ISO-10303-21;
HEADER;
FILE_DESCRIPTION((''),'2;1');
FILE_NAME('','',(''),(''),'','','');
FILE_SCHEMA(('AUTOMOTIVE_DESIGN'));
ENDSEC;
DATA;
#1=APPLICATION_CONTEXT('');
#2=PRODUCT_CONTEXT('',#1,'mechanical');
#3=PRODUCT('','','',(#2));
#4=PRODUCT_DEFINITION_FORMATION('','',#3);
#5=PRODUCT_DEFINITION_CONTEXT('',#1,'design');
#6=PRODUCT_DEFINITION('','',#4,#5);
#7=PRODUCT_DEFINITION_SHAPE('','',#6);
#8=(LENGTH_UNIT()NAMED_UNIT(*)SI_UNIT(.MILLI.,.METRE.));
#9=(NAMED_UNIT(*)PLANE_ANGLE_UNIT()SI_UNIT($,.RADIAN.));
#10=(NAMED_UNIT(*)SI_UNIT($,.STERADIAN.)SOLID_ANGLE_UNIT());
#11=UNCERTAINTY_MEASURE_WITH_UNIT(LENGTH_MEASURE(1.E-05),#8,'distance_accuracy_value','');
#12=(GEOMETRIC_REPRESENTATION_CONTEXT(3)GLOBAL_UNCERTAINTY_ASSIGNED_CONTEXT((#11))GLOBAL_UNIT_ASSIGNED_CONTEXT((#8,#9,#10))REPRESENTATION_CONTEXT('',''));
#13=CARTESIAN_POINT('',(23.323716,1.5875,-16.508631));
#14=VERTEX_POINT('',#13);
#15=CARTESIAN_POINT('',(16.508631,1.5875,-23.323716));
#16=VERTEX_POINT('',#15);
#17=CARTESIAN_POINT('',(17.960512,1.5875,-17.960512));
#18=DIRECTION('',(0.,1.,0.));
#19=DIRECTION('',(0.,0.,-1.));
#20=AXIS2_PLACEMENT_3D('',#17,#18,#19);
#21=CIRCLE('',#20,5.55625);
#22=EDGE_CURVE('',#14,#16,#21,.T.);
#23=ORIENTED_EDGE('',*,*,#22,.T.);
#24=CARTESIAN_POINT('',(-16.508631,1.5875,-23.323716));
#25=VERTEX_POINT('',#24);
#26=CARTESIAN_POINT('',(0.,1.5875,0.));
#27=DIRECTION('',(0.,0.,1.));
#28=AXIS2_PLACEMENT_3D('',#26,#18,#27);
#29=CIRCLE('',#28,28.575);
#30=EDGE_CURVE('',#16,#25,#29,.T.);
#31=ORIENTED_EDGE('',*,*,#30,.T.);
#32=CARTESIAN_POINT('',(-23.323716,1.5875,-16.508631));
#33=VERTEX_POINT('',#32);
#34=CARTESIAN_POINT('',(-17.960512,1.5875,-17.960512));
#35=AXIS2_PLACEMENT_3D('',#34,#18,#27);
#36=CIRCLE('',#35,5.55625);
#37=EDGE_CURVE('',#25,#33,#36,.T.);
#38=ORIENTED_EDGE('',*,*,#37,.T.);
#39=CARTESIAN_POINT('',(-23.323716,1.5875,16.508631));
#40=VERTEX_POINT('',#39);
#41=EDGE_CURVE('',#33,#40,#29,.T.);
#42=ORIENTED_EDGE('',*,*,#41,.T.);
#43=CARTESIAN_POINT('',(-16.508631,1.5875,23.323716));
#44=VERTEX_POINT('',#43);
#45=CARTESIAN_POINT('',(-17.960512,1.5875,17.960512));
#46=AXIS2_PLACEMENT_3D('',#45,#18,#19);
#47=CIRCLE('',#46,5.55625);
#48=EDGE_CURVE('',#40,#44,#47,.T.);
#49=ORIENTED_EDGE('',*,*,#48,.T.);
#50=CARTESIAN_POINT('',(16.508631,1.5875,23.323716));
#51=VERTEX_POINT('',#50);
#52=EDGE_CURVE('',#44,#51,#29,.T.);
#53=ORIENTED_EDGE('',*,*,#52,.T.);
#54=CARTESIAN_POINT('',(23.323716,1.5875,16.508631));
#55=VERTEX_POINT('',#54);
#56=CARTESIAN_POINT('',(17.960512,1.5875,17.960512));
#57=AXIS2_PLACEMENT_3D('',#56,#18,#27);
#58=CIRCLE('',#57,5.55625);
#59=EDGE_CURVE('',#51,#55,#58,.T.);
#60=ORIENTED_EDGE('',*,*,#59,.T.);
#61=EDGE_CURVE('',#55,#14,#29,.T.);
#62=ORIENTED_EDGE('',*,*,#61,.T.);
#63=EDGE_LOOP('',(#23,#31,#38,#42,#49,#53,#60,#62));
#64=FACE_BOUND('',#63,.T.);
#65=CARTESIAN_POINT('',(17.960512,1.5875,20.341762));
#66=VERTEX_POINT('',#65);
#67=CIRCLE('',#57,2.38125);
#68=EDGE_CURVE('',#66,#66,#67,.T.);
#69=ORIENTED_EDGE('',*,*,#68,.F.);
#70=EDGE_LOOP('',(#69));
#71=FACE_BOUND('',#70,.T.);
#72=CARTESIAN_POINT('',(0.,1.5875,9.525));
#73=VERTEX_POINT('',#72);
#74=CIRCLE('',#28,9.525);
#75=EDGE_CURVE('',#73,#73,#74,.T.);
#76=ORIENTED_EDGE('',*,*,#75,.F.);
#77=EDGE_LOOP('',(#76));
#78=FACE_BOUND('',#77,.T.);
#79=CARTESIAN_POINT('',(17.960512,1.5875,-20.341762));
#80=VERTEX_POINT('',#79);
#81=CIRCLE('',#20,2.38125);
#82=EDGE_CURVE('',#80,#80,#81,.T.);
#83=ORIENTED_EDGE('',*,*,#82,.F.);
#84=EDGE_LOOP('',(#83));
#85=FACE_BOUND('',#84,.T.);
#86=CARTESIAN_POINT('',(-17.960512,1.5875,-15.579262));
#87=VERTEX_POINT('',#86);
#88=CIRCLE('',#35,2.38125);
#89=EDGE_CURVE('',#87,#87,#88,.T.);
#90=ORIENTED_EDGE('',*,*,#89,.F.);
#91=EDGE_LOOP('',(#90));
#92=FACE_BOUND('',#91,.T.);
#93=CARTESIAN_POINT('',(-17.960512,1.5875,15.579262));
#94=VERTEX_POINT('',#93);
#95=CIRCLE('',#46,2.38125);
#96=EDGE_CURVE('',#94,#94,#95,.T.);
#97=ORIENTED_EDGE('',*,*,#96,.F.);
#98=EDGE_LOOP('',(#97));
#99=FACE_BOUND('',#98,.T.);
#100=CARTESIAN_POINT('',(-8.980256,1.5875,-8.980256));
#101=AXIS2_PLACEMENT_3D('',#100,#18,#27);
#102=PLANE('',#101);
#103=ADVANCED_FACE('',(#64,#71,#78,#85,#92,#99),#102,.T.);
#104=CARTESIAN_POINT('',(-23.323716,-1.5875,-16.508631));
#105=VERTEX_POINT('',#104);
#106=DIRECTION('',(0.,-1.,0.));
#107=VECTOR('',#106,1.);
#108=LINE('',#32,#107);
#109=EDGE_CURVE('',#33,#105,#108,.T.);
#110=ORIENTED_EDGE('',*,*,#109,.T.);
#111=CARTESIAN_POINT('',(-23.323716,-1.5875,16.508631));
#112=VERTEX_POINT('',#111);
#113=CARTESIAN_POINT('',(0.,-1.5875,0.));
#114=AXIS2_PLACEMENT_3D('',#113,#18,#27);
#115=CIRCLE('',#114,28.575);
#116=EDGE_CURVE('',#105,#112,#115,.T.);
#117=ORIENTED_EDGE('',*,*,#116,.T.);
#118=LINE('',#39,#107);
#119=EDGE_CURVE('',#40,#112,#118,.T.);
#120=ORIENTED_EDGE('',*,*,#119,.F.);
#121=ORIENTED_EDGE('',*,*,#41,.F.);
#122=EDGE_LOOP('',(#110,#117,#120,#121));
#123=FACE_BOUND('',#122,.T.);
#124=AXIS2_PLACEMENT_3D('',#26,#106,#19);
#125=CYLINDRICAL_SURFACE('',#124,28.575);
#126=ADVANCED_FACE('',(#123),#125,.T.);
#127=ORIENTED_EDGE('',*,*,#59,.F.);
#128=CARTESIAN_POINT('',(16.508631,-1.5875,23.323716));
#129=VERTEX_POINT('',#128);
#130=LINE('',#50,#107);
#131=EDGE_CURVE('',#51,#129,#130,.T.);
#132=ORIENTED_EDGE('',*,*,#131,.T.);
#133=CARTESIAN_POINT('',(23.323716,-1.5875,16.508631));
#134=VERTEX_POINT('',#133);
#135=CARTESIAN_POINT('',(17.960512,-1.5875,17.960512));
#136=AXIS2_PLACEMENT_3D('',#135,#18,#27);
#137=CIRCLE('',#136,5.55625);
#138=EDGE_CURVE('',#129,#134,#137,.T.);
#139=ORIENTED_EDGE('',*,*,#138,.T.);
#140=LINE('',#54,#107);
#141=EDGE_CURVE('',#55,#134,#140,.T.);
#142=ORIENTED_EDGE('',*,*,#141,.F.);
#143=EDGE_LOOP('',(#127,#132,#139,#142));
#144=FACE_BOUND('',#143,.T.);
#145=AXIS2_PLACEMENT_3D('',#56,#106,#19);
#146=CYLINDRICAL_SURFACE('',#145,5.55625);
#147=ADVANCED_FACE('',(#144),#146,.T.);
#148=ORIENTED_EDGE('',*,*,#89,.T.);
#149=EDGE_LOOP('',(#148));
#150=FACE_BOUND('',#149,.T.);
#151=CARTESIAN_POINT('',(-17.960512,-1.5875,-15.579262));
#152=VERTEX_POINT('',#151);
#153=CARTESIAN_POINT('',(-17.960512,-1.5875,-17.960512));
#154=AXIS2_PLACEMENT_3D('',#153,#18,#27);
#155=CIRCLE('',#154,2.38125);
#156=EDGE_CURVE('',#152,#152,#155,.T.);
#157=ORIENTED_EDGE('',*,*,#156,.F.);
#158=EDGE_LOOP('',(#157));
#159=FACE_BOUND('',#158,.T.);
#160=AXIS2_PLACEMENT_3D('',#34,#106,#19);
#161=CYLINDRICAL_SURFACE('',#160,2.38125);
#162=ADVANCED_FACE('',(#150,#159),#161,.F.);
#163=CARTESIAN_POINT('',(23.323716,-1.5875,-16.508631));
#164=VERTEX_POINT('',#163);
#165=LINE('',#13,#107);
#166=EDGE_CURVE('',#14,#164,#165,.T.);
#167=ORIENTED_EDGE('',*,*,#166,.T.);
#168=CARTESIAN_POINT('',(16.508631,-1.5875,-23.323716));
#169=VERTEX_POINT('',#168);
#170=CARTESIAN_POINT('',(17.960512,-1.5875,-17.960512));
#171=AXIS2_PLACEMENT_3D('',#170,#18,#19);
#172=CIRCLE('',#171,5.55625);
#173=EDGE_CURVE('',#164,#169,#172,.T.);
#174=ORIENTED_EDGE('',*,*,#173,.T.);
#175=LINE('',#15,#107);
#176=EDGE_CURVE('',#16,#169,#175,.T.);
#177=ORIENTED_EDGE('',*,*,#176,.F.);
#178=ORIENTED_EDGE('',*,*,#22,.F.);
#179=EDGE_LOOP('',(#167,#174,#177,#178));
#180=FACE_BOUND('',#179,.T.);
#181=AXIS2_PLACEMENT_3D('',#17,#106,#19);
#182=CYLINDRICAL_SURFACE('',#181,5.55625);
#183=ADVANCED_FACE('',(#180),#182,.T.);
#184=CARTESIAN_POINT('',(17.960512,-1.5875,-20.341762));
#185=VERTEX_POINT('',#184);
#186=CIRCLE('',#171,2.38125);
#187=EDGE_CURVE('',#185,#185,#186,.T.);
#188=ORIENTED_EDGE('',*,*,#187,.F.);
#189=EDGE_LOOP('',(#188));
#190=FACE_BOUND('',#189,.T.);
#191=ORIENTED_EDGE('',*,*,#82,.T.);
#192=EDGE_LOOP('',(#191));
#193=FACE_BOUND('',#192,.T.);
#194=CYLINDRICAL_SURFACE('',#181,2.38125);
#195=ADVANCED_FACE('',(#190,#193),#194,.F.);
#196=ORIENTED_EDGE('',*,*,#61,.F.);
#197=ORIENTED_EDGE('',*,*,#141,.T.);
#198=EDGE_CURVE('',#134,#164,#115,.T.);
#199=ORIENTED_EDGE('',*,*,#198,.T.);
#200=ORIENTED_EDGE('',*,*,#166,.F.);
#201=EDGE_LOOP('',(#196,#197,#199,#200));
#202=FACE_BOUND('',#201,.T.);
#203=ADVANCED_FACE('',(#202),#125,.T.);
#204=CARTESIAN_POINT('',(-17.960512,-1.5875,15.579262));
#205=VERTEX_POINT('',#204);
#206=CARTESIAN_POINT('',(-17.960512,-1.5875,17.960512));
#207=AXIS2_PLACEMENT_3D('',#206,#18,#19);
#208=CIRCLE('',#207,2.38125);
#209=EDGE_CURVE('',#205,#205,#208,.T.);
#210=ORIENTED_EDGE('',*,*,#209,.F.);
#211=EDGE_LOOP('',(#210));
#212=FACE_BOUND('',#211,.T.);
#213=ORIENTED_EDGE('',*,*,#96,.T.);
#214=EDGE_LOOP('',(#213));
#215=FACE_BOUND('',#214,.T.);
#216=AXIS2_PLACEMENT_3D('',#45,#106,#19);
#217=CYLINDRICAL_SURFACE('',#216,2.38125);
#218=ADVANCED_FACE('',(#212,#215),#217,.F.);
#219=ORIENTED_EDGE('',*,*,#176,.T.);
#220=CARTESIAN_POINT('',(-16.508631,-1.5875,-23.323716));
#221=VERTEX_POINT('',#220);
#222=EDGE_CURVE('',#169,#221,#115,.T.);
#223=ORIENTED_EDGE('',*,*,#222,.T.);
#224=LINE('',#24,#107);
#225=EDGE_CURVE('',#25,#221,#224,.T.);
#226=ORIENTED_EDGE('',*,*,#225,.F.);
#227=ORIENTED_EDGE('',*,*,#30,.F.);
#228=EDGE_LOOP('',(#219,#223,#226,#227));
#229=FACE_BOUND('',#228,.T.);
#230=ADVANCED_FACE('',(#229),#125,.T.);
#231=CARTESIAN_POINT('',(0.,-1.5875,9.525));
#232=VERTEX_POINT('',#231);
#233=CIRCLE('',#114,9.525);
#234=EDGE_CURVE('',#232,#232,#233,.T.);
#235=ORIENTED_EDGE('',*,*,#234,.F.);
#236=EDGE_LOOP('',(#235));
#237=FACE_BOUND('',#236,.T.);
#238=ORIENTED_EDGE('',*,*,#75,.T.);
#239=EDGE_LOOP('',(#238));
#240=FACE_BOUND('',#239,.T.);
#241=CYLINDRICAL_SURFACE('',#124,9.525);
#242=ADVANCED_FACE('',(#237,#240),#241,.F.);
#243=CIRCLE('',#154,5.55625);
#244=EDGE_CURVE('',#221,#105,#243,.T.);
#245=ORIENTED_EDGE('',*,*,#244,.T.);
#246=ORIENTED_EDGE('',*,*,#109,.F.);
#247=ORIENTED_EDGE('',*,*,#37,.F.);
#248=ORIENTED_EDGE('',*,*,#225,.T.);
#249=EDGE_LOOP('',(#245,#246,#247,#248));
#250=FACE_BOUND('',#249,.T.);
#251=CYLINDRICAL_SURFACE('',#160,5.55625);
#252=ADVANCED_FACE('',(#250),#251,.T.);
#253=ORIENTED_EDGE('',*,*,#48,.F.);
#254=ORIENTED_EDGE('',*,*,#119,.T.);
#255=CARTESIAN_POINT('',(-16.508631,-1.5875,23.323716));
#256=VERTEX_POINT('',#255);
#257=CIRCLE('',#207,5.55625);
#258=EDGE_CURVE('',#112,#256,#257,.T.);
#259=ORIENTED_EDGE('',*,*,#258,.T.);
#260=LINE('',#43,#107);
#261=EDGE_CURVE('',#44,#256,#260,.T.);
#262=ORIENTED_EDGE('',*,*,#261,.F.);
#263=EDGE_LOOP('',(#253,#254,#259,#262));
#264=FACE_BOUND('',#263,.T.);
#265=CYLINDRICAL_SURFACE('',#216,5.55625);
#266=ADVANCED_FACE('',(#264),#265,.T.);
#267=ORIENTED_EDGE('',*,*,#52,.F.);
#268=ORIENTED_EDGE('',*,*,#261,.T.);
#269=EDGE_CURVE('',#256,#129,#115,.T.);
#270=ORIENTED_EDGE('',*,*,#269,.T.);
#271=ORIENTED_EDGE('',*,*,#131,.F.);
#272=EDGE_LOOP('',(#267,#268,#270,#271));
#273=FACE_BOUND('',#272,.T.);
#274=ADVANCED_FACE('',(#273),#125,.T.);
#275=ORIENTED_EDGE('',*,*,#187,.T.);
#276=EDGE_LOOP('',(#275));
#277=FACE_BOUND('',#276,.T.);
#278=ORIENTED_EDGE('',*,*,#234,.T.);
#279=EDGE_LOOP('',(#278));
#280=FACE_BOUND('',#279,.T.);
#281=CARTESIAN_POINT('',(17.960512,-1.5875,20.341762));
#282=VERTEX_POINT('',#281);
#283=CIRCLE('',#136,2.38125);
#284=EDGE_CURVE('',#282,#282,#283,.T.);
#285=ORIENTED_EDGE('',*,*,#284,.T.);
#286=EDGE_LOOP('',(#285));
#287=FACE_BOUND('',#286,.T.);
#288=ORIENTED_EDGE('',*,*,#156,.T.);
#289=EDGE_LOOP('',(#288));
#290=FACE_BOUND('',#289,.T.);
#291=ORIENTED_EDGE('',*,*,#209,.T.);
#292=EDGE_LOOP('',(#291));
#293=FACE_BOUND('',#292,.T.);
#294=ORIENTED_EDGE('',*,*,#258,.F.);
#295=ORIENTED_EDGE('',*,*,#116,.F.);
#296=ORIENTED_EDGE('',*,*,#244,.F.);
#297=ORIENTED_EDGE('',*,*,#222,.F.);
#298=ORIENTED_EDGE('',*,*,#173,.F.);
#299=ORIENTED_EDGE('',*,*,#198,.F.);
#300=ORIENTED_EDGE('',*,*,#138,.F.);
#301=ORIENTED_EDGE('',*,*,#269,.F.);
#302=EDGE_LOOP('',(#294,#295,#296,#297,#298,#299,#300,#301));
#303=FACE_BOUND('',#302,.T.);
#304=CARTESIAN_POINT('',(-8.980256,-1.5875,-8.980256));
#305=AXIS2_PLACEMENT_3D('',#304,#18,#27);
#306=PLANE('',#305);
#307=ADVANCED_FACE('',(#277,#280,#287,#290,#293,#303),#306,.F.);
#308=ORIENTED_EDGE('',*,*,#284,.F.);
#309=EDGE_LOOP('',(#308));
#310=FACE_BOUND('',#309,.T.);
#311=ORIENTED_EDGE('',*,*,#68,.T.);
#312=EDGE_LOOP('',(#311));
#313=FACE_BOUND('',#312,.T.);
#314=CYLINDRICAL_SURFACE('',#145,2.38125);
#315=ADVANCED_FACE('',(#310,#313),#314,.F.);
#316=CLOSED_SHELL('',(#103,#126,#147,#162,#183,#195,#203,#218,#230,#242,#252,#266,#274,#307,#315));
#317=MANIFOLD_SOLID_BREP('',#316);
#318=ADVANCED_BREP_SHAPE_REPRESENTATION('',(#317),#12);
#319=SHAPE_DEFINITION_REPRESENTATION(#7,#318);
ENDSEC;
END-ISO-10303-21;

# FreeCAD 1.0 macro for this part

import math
import FreeCAD as App
import Part
import Sketcher

V = App.Vector
Q = App.Units.Quantity

doc = App.newDocument("Part")
body = doc.addObject("PartDesign::Body", "Body")

# Sketch on XZ plane
sketch1 = doc.addObject("Sketcher::SketchObject", "Sketch")
body.addObject(sketch1)
sketch1.AttachmentSupport = (doc.XZ_Plane, [""])
sketch1.MapMode = "FlatFace"
sketch1.addGeometry(Part.ArcOfCircle(Part.Circle(V(-18, -18, 0), V(0, 0, 1), 5.6), math.radians(165), math.radians(285)), False)
sketch1.addGeometry(Part.ArcOfCircle(Part.Circle(V(0, 0, 0), V(0, 0, 1), 28.6), math.radians(145), math.radians(215)), False)
sketch1.addGeometry(Part.ArcOfCircle(Part.Circle(V(-18, 18, 0), V(0, 0, 1), 5.6), math.radians(75), math.radians(195)), False)
sketch1.addGeometry(Part.ArcOfCircle(Part.Circle(V(0, 0, 0), V(0, 0, 1), 28.6), math.radians(55), math.radians(125)), False)
sketch1.addGeometry(Part.ArcOfCircle(Part.Circle(V(18, 18, 0), V(0, 0, 1), 5.6), math.radians(-15), math.radians(105)), False)
sketch1.addGeometry(Part.ArcOfCircle(Part.Circle(V(0, 0, 0), V(0, 0, 1), 28.6), math.radians(-35), math.radians(35)), False)
sketch1.addGeometry(Part.ArcOfCircle(Part.Circle(V(18, -18, 0), V(0, 0, 1), 5.6), math.radians(-105), math.radians(15)), False)
sketch1.addGeometry(Part.ArcOfCircle(Part.Circle(V(0, 0, 0), V(0, 0, 1), 28.6), math.radians(-125), math.radians(-55)), False)
sketch1.addGeometry(Part.Circle(V(-18, 18, 0), V(0, 0, 1), 2.4), False)
sketch1.addGeometry(Part.Circle(V(18, 18, 0), V(0, 0, 1), 2.4), False)
sketch1.addGeometry(Part.Circle(V(-18, -18, 0), V(0, 0, 1), 2.4), False)
sketch1.addGeometry(Part.Circle(V(0, 0, 0), V(0, 0, 1), 9.5), False)
sketch1.addGeometry(Part.Circle(V(18, -18, 0), V(0, 0, 1), 2.4), False)
sketch1.addConstraint(Sketcher.Constraint("Coincident", 0, 1, 1, 2))
sketch1.addConstraint(Sketcher.Constraint("Coincident", 1, 1, 2, 2))
sketch1.addConstraint(Sketcher.Constraint("Coincident", 2, 1, 3, 2))
sketch1.addConstraint(Sketcher.Constraint("Coincident", 3, 1, 4, 2))
sketch1.addConstraint(Sketcher.Constraint("Coincident", 4, 1, 5, 2))
sketch1.addConstraint(Sketcher.Constraint("Coincident", 5, 1, 6, 2))
sketch1.addConstraint(Sketcher.Constraint("Coincident", 6, 1, 7, 2))
sketch1.addConstraint(Sketcher.Constraint("Coincident", 7, 1, 0, 2))
sketch1.addConstraint(Sketcher.Constraint("Coincident", 1, 3, -1, 1))
sketch1.addConstraint(Sketcher.Constraint("Coincident", 3, 3, -1, 1))
sketch1.addConstraint(Sketcher.Constraint("Coincident", 5, 3, -1, 1))
sketch1.addConstraint(Sketcher.Constraint("Coincident", 7, 3, -1, 1))
sketch1.addConstraint(Sketcher.Constraint("Coincident", 11, 3, -1, 1))
sketch1.addConstraint(Sketcher.Constraint("Coincident", 8, 3, 2, 3))
sketch1.addConstraint(Sketcher.Constraint("Coincident", 9, 3, 4, 3))
sketch1.addConstraint(Sketcher.Constraint("Coincident", 10, 3, 0, 3))
sketch1.addConstraint(Sketcher.Constraint("Coincident", 12, 3, 6, 3))
sketch1.addConstraint(Sketcher.Constraint("Equal", 0, 2))
sketch1.addConstraint(Sketcher.Constraint("Equal", 1, 3))
sketch1.addConstraint(Sketcher.Constraint("Equal", 2, 4))
sketch1.addConstraint(Sketcher.Constraint("Equal", 3, 5))
sketch1.addConstraint(Sketcher.Constraint("Equal", 4, 6))
sketch1.addConstraint(Sketcher.Constraint("Equal", 5, 7))
sketch1.addConstraint(Sketcher.Constraint("Equal", 8, 9))
sketch1.addConstraint(Sketcher.Constraint("Equal", 9, 10))
sketch1.addConstraint(Sketcher.Constraint("Equal", 10, 12))
sketch1.addConstraint(Sketcher.Constraint("Symmetric", 0, 3, 4, 3, -1, 1))
sketch1.addConstraint(Sketcher.Constraint("Symmetric", 2, 3, 6, 3, -1, 1))
sketch1.addConstraint(Sketcher.Constraint("Symmetric", 2, 3, 4, 3, -2))
sketch1.addConstraint(Sketcher.Constraint("Diameter", 11, Q("0.75 in")))
sketch1.addConstraint(Sketcher.Constraint("Diameter", 8, Q("0.1875 in")))
sketch1.addConstraint(Sketcher.Constraint("Radius", 0, Q("0.21875 in")))
sketch1.addConstraint(Sketcher.Constraint("Radius", 1, Q("1.125 in")))
sketch1.addConstraint(Sketcher.Constraint("DistanceY", 0, 1, -1, 1, 16.508631))
sketch1.addConstraint(Sketcher.Constraint("DistanceX", 2, 1, -1, 1, 16.508631))
pad1 = doc.addObject("PartDesign::Pad", "Pad")
body.addObject(pad1)
pad1.Profile = sketch1
pad1.Length = Q("0.125 in")
pad1.Midplane = True

doc.recompute()
